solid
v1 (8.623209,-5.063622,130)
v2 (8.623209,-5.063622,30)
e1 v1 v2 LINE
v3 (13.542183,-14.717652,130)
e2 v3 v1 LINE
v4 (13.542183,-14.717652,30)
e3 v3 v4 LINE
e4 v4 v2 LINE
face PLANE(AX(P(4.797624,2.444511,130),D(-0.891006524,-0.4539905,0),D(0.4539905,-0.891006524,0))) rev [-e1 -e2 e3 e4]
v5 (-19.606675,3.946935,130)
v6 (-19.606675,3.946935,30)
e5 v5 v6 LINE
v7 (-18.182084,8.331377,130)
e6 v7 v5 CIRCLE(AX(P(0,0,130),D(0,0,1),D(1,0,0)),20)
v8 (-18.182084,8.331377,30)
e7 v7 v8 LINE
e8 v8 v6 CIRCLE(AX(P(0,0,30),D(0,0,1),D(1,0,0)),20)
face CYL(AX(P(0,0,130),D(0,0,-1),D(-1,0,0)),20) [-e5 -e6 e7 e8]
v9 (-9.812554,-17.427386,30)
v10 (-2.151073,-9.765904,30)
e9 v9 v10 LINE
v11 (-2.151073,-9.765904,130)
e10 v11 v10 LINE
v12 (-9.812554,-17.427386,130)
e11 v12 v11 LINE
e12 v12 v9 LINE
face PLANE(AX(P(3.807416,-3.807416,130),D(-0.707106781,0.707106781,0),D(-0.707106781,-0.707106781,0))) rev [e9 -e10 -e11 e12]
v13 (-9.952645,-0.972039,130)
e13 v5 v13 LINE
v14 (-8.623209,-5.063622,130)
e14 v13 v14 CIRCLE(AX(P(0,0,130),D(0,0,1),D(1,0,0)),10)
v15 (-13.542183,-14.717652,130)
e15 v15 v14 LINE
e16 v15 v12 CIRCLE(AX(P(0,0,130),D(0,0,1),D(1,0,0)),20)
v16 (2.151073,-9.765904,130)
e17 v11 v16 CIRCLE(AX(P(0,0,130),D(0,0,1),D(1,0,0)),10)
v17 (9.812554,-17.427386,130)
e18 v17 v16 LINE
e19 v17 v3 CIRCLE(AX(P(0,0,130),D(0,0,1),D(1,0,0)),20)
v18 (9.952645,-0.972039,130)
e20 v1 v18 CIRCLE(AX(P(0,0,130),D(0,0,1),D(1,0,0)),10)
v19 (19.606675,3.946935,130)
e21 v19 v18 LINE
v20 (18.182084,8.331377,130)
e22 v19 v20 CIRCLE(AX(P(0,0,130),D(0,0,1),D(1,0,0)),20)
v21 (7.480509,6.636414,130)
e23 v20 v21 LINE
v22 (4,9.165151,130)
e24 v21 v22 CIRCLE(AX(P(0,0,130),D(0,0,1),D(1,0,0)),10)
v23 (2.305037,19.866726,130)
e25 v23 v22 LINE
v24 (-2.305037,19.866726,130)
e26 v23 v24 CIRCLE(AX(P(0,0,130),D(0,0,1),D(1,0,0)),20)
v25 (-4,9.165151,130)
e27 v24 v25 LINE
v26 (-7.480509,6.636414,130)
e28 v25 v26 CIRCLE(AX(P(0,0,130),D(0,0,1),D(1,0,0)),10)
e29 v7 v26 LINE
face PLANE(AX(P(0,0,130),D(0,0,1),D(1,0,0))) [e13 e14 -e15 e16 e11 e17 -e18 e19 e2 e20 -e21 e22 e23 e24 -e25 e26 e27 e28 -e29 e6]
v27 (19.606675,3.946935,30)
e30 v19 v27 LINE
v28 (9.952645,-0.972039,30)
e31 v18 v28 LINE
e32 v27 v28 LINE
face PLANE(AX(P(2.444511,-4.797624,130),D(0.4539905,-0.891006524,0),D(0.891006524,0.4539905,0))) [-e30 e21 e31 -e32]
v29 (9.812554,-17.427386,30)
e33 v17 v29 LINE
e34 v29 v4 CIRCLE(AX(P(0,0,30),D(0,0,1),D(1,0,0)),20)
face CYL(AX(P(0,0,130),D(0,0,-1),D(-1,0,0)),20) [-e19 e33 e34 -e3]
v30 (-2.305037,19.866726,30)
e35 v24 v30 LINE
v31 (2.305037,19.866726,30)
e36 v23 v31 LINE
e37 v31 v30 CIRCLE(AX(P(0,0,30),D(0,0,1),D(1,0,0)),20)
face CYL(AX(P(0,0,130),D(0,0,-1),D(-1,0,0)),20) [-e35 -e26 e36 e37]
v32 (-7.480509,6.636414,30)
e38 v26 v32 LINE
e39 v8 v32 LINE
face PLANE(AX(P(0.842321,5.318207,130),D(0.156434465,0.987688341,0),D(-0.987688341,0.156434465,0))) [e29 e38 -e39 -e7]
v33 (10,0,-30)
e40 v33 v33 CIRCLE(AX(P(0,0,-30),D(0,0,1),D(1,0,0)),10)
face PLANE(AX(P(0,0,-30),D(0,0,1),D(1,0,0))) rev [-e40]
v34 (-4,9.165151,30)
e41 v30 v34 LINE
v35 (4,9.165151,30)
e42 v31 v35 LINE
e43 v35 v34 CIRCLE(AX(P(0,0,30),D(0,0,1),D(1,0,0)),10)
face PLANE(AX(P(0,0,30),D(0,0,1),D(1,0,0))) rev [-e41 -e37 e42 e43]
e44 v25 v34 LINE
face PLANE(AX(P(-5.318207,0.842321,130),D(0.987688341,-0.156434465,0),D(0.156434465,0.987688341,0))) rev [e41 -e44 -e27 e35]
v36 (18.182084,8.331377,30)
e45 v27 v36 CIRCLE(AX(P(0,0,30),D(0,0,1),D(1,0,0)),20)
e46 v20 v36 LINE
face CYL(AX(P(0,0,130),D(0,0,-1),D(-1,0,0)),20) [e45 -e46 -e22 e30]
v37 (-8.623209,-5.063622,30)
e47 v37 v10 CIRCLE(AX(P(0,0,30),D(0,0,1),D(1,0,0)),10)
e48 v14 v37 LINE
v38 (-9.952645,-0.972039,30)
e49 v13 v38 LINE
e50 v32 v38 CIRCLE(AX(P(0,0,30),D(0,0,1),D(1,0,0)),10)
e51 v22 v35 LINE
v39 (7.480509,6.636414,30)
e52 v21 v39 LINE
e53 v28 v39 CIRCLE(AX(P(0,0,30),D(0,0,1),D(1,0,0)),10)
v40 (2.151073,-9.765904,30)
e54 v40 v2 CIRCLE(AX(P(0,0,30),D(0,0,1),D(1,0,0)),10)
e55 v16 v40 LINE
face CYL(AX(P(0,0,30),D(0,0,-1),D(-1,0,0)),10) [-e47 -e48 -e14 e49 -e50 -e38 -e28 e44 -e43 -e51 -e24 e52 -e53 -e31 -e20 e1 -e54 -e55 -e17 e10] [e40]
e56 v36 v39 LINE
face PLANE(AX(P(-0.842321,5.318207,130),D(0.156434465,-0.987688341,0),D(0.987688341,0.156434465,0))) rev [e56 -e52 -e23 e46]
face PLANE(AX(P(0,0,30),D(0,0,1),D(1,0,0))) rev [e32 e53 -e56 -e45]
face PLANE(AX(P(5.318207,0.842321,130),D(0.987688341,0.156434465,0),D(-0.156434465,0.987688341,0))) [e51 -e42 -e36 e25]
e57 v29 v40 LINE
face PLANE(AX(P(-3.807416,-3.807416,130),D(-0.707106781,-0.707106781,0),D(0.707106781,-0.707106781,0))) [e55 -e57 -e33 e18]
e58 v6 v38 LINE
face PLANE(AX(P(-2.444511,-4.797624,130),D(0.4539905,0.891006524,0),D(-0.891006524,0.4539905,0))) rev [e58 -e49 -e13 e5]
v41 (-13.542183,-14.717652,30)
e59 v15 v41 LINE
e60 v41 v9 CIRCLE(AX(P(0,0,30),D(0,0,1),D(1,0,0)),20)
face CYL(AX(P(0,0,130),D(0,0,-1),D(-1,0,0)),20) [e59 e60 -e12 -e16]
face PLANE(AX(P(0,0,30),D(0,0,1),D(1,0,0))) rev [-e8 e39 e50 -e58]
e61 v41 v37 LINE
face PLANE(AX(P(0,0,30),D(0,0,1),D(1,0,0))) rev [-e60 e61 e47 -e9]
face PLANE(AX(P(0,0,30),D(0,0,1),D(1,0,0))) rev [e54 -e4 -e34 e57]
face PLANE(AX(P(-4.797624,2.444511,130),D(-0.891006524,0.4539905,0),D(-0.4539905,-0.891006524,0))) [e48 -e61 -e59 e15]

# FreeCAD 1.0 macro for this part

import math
import FreeCAD as App
import Part
import Sketcher
from FreeCAD import Vector
Q = App.Units.Quantity

doc = App.newDocument("Part")
body = doc.addObject("PartDesign::Body", "Body")

sketch1 = body.newObject("Sketcher::SketchObject", "Sketch")
sketch1.AttachmentSupport = (doc.getObject("XY_Plane"), [""])
sketch1.MapMode = "FlatFace"
sketch1.addGeometry(Part.Circle(Vector(0, 0, 0), Vector(0, 0, 1), 10), False)
sketch1.addConstraint([
    Sketcher.Constraint("Coincident", 0, 3, -1, 1),
    Sketcher.Constraint("Diameter", 0, 20.0),
])
pad1 = body.newObject("PartDesign::Pad", "Pad")
pad1.Profile = sketch1
pad1.Length = 60
pad1.Midplane = True

sketch2 = body.newObject("Sketcher::SketchObject", "Sketch001")
sketch2.AttachmentSupport = (doc.getObject("XY_Plane"), [""])
sketch2.MapMode = "FlatFace"
sketch2.AttachmentOffset = App.Placement(Vector(0, 0, 30), App.Rotation())
sketch2.addGeometry([
    Part.ArcOfCircle(Part.Circle(Vector(0, 0, 0), Vector(0, 0, 1), 20), math.radians(83.38), math.radians(96.62)),
    Part.LineSegment(Vector(-2.3, 19.9, 0), Vector(-4, 9.2, 0)),
    Part.ArcOfCircle(Part.Circle(Vector(0, 0, 0), Vector(0, 0, 1), 10), math.radians(114), math.radians(138)),
    Part.LineSegment(Vector(-7.5, 6.6, 0), Vector(-18.2, 8.3, 0)),
    Part.ArcOfCircle(Part.Circle(Vector(0, 0, 0), Vector(0, 0, 1), 20), math.radians(155.38), math.radians(168.62)),
    Part.LineSegment(Vector(-19.6, 3.9, 0), Vector(-10, -1, 0)),
    Part.ArcOfCircle(Part.Circle(Vector(0, 0, 0), Vector(0, 0, 1), 10), math.radians(-174), math.radians(-150)),
    Part.LineSegment(Vector(-8.6, -5.1, 0), Vector(-13.5, -14.7, 0)),
    Part.ArcOfCircle(Part.Circle(Vector(0, 0, 0), Vector(0, 0, 1), 20), math.radians(-132.62), math.radians(-119.38)),
    Part.LineSegment(Vector(-9.8, -17.4, 0), Vector(-2.2, -9.8, 0)),
    Part.ArcOfCircle(Part.Circle(Vector(0, 0, 0), Vector(0, 0, 1), 10), math.radians(-102), math.radians(-78)),
    Part.LineSegment(Vector(2.2, -9.8, 0), Vector(9.8, -17.4, 0)),
    Part.ArcOfCircle(Part.Circle(Vector(0, 0, 0), Vector(0, 0, 1), 20), math.radians(-60.62), math.radians(-47.38)),
    Part.LineSegment(Vector(13.5, -14.7, 0), Vector(8.6, -5.1, 0)),
    Part.ArcOfCircle(Part.Circle(Vector(0, 0, 0), Vector(0, 0, 1), 10), math.radians(-30), math.radians(-6)),
    Part.LineSegment(Vector(10, -1, 0), Vector(19.6, 3.9, 0)),
    Part.ArcOfCircle(Part.Circle(Vector(0, 0, 0), Vector(0, 0, 1), 20), math.radians(11.38), math.radians(24.62)),
    Part.LineSegment(Vector(18.2, 8.3, 0), Vector(7.5, 6.6, 0)),
    Part.ArcOfCircle(Part.Circle(Vector(0, 0, 0), Vector(0, 0, 1), 10), math.radians(42), math.radians(66)),
    Part.LineSegment(Vector(4, 9.2, 0), Vector(2.3, 19.9, 0)),
], False)
sketch2.addConstraint([
    Sketcher.Constraint("Coincident", 0, 2, 1, 1),
    Sketcher.Constraint("Coincident", 1, 2, 2, 1),
    Sketcher.Constraint("Coincident", 2, 2, 3, 1),
    Sketcher.Constraint("Coincident", 3, 2, 4, 1),
    Sketcher.Constraint("Coincident", 4, 2, 5, 1),
    Sketcher.Constraint("Coincident", 5, 2, 6, 1),
    Sketcher.Constraint("Coincident", 6, 2, 7, 1),
    Sketcher.Constraint("Coincident", 7, 2, 8, 1),
    Sketcher.Constraint("Coincident", 8, 2, 9, 1),
    Sketcher.Constraint("Coincident", 9, 2, 10, 1),
    Sketcher.Constraint("Coincident", 10, 2, 11, 1),
    Sketcher.Constraint("Coincident", 11, 2, 12, 1),
    Sketcher.Constraint("Coincident", 12, 2, 13, 1),
    Sketcher.Constraint("Coincident", 13, 2, 14, 1),
    Sketcher.Constraint("Coincident", 14, 2, 15, 1),
    Sketcher.Constraint("Coincident", 15, 2, 16, 1),
    Sketcher.Constraint("Coincident", 16, 2, 17, 1),
    Sketcher.Constraint("Coincident", 17, 2, 18, 1),
    Sketcher.Constraint("Coincident", 18, 2, 19, 1),
    Sketcher.Constraint("Coincident", 19, 2, 0, 1),
    Sketcher.Constraint("Coincident", 0, 3, -1, 1),
    Sketcher.Constraint("Coincident", 2, 3, -1, 1),
    Sketcher.Constraint("Coincident", 4, 3, -1, 1),
    Sketcher.Constraint("Coincident", 6, 3, -1, 1),
    Sketcher.Constraint("Coincident", 8, 3, -1, 1),
    Sketcher.Constraint("Coincident", 10, 3, -1, 1),
    Sketcher.Constraint("Coincident", 12, 3, -1, 1),
    Sketcher.Constraint("Coincident", 14, 3, -1, 1),
    Sketcher.Constraint("Coincident", 16, 3, -1, 1),
    Sketcher.Constraint("Coincident", 18, 3, -1, 1),
    Sketcher.Constraint("Equal", 0, 4),
    Sketcher.Constraint("Equal", 2, 6),
    Sketcher.Constraint("Equal", 4, 8),
    Sketcher.Constraint("Equal", 6, 10),
    Sketcher.Constraint("Equal", 8, 12),
    Sketcher.Constraint("Equal", 10, 14),
    Sketcher.Constraint("Equal", 12, 16),
    Sketcher.Constraint("Equal", 14, 18),
    Sketcher.Constraint("Perpendicular", 1, 3),
    Sketcher.Constraint("Perpendicular", 5, 7),
    Sketcher.Constraint("Perpendicular", 9, 11),
    Sketcher.Constraint("Perpendicular", 13, 15),
    Sketcher.Constraint("Perpendicular", 17, 19),
    Sketcher.Constraint("Horizontal", 9, 2, 10, 2),
    Sketcher.Constraint("Horizontal", 8, 2, 11, 2),
    Sketcher.Constraint("Horizontal", 7, 2, 12, 2),
    Sketcher.Constraint("Horizontal", 6, 2, 13, 2),
    Sketcher.Constraint("Horizontal", 5, 2, 14, 2),
    Sketcher.Constraint("Horizontal", 3, 2, 16, 2),
    Sketcher.Constraint("Horizontal", 2, 2, 17, 2),
    Sketcher.Constraint("Horizontal", 1, 2, 18, 2),
    Sketcher.Constraint("Equal", 1, 3),
    Sketcher.Constraint("Equal", 3, 5),
    Sketcher.Constraint("Equal", 5, 7),
    Sketcher.Constraint("Equal", 7, 9),
    Sketcher.Constraint("Radius", 0, 20.0),
    Sketcher.Constraint("Radius", 2, 10.0),
    Sketcher.Constraint("Angle", 1, Q("-99 deg")),
    Sketcher.Constraint("Angle", 5, Q("-27 deg")),
    Sketcher.Constraint("DistanceX", 1, 2, -1, 1, 4.0),
])
pad2 = body.newObject("PartDesign::Pad", "Pad001")
pad2.Profile = sketch2
pad2.Length = 100

doc.recompute()
